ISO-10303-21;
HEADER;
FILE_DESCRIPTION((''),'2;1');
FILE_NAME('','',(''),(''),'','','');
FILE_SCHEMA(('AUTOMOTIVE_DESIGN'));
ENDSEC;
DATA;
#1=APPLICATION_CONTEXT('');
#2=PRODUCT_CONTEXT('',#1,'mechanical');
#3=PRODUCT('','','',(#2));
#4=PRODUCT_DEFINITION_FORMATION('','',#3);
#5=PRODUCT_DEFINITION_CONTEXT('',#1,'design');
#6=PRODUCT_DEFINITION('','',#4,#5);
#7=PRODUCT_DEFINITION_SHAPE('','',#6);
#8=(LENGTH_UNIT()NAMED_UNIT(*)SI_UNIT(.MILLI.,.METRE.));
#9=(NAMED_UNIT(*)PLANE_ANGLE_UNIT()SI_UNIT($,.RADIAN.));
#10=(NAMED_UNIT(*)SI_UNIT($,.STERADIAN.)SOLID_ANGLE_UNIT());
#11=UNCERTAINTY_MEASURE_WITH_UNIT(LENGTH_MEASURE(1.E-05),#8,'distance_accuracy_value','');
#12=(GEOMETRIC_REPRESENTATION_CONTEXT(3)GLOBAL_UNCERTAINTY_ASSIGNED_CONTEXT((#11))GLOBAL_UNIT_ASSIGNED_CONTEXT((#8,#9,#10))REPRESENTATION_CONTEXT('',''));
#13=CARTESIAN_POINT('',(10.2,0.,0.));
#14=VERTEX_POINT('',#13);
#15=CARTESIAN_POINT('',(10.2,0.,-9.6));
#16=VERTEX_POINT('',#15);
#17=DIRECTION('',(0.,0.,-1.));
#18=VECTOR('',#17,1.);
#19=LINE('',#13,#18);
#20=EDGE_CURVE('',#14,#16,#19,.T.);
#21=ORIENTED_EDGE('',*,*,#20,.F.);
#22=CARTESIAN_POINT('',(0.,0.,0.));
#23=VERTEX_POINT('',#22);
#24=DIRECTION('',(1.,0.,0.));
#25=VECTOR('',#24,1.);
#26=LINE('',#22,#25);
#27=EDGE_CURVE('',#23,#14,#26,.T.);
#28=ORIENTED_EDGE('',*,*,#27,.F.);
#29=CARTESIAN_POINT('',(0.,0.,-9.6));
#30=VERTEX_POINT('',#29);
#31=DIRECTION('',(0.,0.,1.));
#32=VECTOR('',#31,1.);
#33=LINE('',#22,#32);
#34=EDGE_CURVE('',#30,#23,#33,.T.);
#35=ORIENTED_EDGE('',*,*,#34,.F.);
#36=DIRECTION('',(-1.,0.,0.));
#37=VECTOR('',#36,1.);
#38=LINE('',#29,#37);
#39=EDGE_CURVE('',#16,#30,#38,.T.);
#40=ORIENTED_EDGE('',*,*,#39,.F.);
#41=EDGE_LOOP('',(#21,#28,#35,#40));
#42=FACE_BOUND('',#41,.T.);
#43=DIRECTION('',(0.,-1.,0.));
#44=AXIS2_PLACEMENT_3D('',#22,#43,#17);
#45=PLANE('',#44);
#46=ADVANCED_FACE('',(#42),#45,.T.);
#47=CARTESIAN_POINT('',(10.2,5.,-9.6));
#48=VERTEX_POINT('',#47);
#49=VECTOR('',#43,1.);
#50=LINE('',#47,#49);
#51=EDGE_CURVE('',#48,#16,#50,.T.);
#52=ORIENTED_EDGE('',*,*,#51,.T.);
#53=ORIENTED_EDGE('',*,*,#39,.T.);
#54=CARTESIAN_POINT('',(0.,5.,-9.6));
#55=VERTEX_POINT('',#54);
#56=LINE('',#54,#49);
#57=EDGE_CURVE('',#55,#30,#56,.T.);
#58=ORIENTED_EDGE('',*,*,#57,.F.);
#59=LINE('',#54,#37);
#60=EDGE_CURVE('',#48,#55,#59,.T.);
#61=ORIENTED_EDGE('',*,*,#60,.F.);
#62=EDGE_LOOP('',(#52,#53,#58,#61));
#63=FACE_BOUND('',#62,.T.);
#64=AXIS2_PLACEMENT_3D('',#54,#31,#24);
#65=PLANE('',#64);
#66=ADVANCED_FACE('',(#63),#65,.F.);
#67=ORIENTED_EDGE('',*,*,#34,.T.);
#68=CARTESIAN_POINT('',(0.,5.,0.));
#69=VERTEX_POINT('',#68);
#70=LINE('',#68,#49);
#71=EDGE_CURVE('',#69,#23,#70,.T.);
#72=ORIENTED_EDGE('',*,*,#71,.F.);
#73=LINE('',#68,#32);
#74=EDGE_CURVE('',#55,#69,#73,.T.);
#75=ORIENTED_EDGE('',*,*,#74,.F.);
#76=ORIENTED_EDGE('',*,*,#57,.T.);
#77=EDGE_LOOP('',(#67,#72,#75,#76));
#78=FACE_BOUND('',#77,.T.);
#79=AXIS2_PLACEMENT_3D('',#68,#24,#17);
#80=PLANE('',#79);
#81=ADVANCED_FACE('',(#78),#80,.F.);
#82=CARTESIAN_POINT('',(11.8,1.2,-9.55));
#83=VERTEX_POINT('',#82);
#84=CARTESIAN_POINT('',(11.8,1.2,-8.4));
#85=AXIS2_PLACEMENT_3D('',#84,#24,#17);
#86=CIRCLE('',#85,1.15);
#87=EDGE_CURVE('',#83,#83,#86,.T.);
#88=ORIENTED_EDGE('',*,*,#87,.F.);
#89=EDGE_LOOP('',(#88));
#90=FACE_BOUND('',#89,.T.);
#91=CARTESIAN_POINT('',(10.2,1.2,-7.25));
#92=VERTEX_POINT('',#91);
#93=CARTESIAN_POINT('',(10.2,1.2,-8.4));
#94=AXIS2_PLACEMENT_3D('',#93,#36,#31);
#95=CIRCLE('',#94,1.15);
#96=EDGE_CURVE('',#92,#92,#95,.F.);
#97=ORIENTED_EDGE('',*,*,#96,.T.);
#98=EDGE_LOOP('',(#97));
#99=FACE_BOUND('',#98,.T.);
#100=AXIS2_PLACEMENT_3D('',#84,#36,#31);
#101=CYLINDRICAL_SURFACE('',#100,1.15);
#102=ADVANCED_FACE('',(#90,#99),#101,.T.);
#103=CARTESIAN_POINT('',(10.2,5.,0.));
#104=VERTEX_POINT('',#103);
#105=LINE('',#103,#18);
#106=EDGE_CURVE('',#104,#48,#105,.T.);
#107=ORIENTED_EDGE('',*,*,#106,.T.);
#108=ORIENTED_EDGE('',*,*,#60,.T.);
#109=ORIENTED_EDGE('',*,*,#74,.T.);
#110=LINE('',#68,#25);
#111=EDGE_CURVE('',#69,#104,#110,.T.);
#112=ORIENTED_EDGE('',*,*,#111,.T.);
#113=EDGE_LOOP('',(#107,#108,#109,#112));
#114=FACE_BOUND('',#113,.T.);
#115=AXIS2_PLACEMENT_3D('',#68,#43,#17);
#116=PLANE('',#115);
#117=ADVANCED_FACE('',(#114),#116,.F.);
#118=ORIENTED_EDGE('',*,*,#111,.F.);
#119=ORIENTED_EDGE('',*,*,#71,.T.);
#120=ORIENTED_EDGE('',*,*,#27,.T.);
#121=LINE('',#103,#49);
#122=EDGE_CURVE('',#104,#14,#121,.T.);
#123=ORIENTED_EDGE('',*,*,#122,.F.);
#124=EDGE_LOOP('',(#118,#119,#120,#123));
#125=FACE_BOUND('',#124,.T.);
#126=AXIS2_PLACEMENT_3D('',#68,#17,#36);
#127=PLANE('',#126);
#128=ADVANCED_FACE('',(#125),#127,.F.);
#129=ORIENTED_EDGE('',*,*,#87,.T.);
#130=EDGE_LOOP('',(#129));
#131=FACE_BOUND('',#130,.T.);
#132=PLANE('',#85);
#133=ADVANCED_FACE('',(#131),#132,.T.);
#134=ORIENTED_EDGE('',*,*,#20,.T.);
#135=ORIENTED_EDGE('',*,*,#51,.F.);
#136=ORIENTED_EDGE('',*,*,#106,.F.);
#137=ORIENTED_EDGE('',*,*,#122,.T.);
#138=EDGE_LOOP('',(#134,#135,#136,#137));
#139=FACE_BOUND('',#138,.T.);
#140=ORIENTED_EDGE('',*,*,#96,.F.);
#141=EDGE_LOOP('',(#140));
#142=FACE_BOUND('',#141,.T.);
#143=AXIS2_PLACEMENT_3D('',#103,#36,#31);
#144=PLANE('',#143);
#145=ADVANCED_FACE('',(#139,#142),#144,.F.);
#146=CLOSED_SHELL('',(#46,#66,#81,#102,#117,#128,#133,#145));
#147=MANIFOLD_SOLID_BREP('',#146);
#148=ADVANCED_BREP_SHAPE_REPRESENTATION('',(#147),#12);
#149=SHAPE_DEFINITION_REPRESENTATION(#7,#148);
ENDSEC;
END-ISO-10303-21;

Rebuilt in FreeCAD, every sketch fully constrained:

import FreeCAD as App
import Part
import Sketcher

V = App.Vector
Q = App.Units.Quantity

doc = App.newDocument("Part")
body = doc.addObject("PartDesign::Body", "Body")

# Sketch on XZ plane
sketch1 = body.newObject("Sketcher::SketchObject", "Sketch")
sketch1.AttachmentSupport = (doc.getObject("XZ_Plane"), [""])
sketch1.MapMode = "FlatFace"
sketch1.addGeometry([
    Part.LineSegment(V(0, -9.6, 0), V(0, 0, 0)),
    Part.LineSegment(V(0, 0, 0), V(10.2, 0, 0)),
    Part.LineSegment(V(10.2, 0, 0), V(10.2, -9.6, 0)),
    Part.LineSegment(V(10.2, -9.6, 0), V(0, -9.6, 0)),
], False)
sketch1.addConstraint([
    Sketcher.Constraint("Coincident", 0, 2, 1, 1),
    Sketcher.Constraint("Coincident", 1, 2, 2, 1),
    Sketcher.Constraint("Coincident", 2, 2, 3, 1),
    Sketcher.Constraint("Coincident", 3, 2, 0, 1),
    Sketcher.Constraint("Vertical", 0),
    Sketcher.Constraint("Horizontal", 1),
    Sketcher.Constraint("Vertical", 2),
    Sketcher.Constraint("Horizontal", 3),
    Sketcher.Constraint("Coincident", 0, 2, -1, 1),
    Sketcher.Constraint("DistanceX", 1, 1, 1, 2, Q("10.2 mm")),
    Sketcher.Constraint("DistanceY", 0, 1, 0, 2, Q("9.6 mm")),
])
pad1 = body.newObject("PartDesign::Pad", "Pad")
pad1.Profile = sketch1
pad1.Length = 5
pad1.Reversed = True

# Sketch on YZ plane
sketch2 = body.newObject("Sketcher::SketchObject", "Sketch001")
sketch2.AttachmentSupport = (doc.getObject("YZ_Plane"), [""])
sketch2.MapMode = "FlatFace"
sketch2.AttachmentOffset = App.Placement(V(0, 0, 10.2), App.Rotation())
sketch2.addGeometry(Part.Circle(V(1.2, -8.4, 0), V(0, 0, 1), 1.15), False)
sketch2.addConstraint([
    Sketcher.Constraint("Diameter", 0, Q("2.3 mm")),
    Sketcher.Constraint("DistanceX", -1, 1, 0, 3, Q("1.2 mm")),
    Sketcher.Constraint("DistanceY", 0, 3, -1, 1, Q("8.4 mm")),
])
pad2 = body.newObject("PartDesign::Pad", "Pad001")
pad2.Profile = sketch2
pad2.Length = 1.6

doc.recompute()
